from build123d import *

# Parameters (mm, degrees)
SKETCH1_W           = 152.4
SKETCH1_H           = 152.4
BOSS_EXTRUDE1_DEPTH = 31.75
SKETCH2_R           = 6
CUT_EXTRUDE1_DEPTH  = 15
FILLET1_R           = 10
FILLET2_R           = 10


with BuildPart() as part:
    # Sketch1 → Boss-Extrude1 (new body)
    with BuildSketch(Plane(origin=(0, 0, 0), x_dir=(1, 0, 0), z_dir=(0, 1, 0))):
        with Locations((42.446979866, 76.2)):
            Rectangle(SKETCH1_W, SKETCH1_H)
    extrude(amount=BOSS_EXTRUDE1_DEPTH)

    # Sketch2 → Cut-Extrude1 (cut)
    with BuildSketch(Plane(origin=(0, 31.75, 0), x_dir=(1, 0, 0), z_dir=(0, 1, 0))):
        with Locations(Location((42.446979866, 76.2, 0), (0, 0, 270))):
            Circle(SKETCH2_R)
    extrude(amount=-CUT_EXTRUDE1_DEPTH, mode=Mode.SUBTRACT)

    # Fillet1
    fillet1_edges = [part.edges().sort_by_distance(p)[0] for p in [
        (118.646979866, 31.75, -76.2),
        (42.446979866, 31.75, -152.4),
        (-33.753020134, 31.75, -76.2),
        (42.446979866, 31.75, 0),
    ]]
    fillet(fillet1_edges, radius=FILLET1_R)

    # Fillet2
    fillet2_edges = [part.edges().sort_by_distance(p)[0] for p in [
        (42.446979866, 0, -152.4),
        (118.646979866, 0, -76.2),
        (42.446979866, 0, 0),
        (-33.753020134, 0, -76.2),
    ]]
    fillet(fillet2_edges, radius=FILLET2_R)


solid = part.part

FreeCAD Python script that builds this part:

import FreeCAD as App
import Part
import Sketcher

V = App.Vector


def edges_at(feature, points):
    """Names of the edges that pass closest to the given points."""
    edges = feature.Shape.Edges
    near = lambda p: min(range(len(edges)), key=lambda i: edges[i].distToShape(Part.Vertex(*p))[0])
    return sorted({f"Edge{near(p) + 1}" for p in points})


def add_polygon(sketch, points):
    """Adds a closed chain of lines whose ends are joined by coincident constraints."""
    first, n = sketch.GeometryCount, len(points)
    for a, b in zip(points, points[1:] + points[:1]):
        sketch.addGeometry(Part.LineSegment(App.Vector(*a, 0), App.Vector(*b, 0)), False)
    for i in range(n):
        sketch.addConstraint(Sketcher.Constraint("Coincident", first + i, 2, first + (i + 1) % n, 1))

doc = App.newDocument("Part")
body = doc.addObject("PartDesign::Body", "Body")

# Sketch on XZ plane
sketch1 = body.newObject("Sketcher::SketchObject", "Sketch")
sketch1.AttachmentSupport = (doc.getObject("XZ_Plane"), [""])
sketch1.MapMode = "FlatFace"
add_polygon(sketch1, [(-34, -152), (-34, 0), (119, 0), (119, -152)])  # lines 0-3
sketch1.addConstraint([
    Sketcher.Constraint("Vertical", 0),
    Sketcher.Constraint("Horizontal", 1),
    Sketcher.Constraint("Vertical", 2),
    Sketcher.Constraint("Horizontal", 3),
    Sketcher.Constraint("PointOnObject", 0, 2, -1),
    Sketcher.Constraint("Equal", 3, 0),
    Sketcher.Constraint("DistanceX", 1, 1, 1, 2, 152.4),
    Sketcher.Constraint("DistanceX", 0, 2, -1, 1, 33.75302),
])
pad1 = body.newObject("PartDesign::Pad", "Pad")
pad1.Profile = sketch1
pad1.Length = 31.75
pad1.Reversed = True

# Sketch on XZ plane
sketch2 = body.newObject("Sketcher::SketchObject", "Sketch001")
sketch2.AttachmentSupport = (doc.getObject("XZ_Plane"), [""])
sketch2.MapMode = "FlatFace"
sketch2.AttachmentOffset = App.Placement(V(0, 0, -31.75), App.Rotation())
sketch2.addGeometry(Part.Circle(V(42, -76, 0), V(0, 0, 1), 6), False)
sketch2.addConstraint([
    Sketcher.Constraint("Diameter", 0, 12.0),
    Sketcher.Constraint("DistanceY", 0, 3, -1, 1, 76.2),
    Sketcher.Constraint("DistanceX", -1, 1, 0, 3, 42.44698),
])
pocket1 = body.newObject("PartDesign::Pocket", "Pocket")
pocket1.Profile = sketch2
pocket1.Length = 15
pocket1.Reversed = True
doc.recompute()

fillet = body.newObject("PartDesign::Fillet", "Fillet")
fillet.Base = (pocket1, edges_at(pocket1, [
    (118.647, 31.75, -76.2),
    (42.447, 31.75, -152.4),
    (-33.753, 31.75, -76.2),
    (42.447, 31.75, 0),
]))
fillet.Radius = 10
doc.recompute()

fillet2 = body.newObject("PartDesign::Fillet", "Fillet001")
fillet2.Base = (fillet, edges_at(fillet, [
    (42.447, 0, -152.4),
    (118.647, 0, -76.2),
    (42.447, 0, 0),
    (-33.753, 0, -76.2),
]))
fillet2.Radius = 10

doc.recompute()
